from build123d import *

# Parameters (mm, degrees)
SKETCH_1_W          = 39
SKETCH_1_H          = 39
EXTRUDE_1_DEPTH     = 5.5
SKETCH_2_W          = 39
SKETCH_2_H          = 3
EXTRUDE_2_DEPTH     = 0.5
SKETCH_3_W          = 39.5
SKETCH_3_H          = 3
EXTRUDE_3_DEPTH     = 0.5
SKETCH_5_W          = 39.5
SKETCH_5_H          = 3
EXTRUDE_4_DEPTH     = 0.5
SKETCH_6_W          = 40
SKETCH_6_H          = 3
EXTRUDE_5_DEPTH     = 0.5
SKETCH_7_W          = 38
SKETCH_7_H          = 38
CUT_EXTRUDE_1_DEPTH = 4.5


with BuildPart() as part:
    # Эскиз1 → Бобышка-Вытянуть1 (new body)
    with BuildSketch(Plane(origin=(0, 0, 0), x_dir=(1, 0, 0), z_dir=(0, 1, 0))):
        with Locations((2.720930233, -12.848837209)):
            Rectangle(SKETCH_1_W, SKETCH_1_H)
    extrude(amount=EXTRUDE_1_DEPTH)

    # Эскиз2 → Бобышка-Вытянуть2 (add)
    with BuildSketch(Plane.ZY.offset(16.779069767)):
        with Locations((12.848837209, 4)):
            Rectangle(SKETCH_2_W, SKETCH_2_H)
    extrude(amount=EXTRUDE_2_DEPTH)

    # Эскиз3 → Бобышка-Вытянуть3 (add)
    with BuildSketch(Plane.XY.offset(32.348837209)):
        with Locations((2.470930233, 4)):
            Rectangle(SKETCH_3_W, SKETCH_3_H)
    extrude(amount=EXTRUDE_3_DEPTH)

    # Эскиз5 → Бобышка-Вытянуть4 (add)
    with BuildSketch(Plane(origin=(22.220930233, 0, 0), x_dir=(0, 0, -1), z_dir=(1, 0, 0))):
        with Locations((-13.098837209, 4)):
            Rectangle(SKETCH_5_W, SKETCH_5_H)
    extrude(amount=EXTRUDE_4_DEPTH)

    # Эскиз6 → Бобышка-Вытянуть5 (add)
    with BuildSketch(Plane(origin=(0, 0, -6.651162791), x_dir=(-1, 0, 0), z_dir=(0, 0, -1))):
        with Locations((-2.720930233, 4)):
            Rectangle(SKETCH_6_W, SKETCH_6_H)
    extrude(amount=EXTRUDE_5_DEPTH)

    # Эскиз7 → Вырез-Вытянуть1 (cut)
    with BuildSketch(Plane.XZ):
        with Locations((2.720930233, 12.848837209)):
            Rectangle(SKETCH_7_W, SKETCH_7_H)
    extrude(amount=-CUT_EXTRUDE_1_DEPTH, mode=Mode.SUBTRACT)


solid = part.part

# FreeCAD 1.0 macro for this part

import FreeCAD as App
import Part
import Sketcher
Q = App.Units.Quantity


def add_polygon(sketch, points):
    """Adds a closed chain of lines whose ends are joined by coincident constraints."""
    first, n = sketch.GeometryCount, len(points)
    for a, b in zip(points, points[1:] + points[:1]):
        sketch.addGeometry(Part.LineSegment(App.Vector(*a, 0), App.Vector(*b, 0)), False)
    for i in range(n):
        sketch.addConstraint(Sketcher.Constraint("Coincident", first + i, 2, first + (i + 1) % n, 1))

doc = App.newDocument("Part")
body = doc.addObject("PartDesign::Body", "Body")

# Sketch on XZ plane
sketch1 = body.newObject("Sketcher::SketchObject", "Sketch")
sketch1.AttachmentSupport = (doc.getObject("XZ_Plane"), [""])
sketch1.MapMode = "FlatFace"
add_polygon(sketch1, [(-17, -7), (-17, 32), (22, 32), (22, -7)])  # lines 0-3
sketch1.addConstraint([
    Sketcher.Constraint("Vertical", 0),
    Sketcher.Constraint("Horizontal", 1),
    Sketcher.Constraint("Vertical", 2),
    Sketcher.Constraint("Horizontal", 3),
    Sketcher.Constraint("Equal", 3, 0),
    Sketcher.Constraint("DistanceX", 1, 1, 1, 2, Q("39 mm")),
    Sketcher.Constraint("DistanceX", 0, 2, -1, 1, Q("16.77907 mm")),
    Sketcher.Constraint("DistanceY", -1, 1, 0, 2, Q("32.348837 mm")),
])
pad1 = body.newObject("PartDesign::Pad", "Pad")
pad1.Profile = sketch1
pad1.Length = 5.5
pad1.Reversed = True

# Sketch on YZ plane
sketch2 = body.newObject("Sketcher::SketchObject", "Sketch001")
sketch2.AttachmentSupport = (doc.getObject("YZ_Plane"), [""])
sketch2.MapMode = "FlatFace"
sketch2.AttachmentOffset = App.Placement(App.Vector(0, 0, -16.77907), App.Rotation())
add_polygon(sketch2, [(5.5, -6.7), (2.5, -6.7), (2.5, 32.3), (5.5, 32.3)])  # lines 0-3
sketch2.addConstraint([
    Sketcher.Constraint("Horizontal", 0),
    Sketcher.Constraint("Vertical", 1),
    Sketcher.Constraint("Horizontal", 2),
    Sketcher.Constraint("Vertical", 3),
    Sketcher.Constraint("DistanceX", 0, 2, 0, 1, Q("3 mm")),
    Sketcher.Constraint("DistanceY", 1, 1, 1, 2, Q("39 mm")),
    Sketcher.Constraint("DistanceX", -1, 1, 0, 2, Q("2.5 mm")),
    Sketcher.Constraint("DistanceY", 0, 2, -1, 1, Q("6.651163 mm")),
])
pad2 = body.newObject("PartDesign::Pad", "Pad001")
pad2.Profile = sketch2
pad2.Length = 0.5
pad2.Reversed = True

# Sketch on XY plane
sketch3 = body.newObject("Sketcher::SketchObject", "Sketch002")
sketch3.AttachmentSupport = (doc.getObject("XY_Plane"), [""])
sketch3.MapMode = "FlatFace"
sketch3.AttachmentOffset = App.Placement(App.Vector(0, 0, 32.348837), App.Rotation())
add_polygon(sketch3, [(-17.3, 5.5), (-17.3, 2.5), (22.2, 2.5), (22.2, 5.5)])  # lines 0-3
sketch3.addConstraint([
    Sketcher.Constraint("Vertical", 0),
    Sketcher.Constraint("Horizontal", 1),
    Sketcher.Constraint("Vertical", 2),
    Sketcher.Constraint("Horizontal", 3),
    Sketcher.Constraint("DistanceY", 0, 2, 0, 1, Q("3 mm")),
    Sketcher.Constraint("DistanceX", 1, 1, 1, 2, Q("39.5 mm")),
    Sketcher.Constraint("DistanceY", -1, 1, 0, 2, Q("2.5 mm")),
    Sketcher.Constraint("DistanceX", 0, 2, -1, 1, Q("17.27907 mm")),
])
pad3 = body.newObject("PartDesign::Pad", "Pad002")
pad3.Profile = sketch3
pad3.Length = 0.5

# Sketch on YZ plane
sketch4 = body.newObject("Sketcher::SketchObject", "Sketch003")
sketch4.AttachmentSupport = (doc.getObject("YZ_Plane"), [""])
sketch4.MapMode = "FlatFace"
sketch4.AttachmentOffset = App.Placement(App.Vector(0, 0, 22.22093), App.Rotation())
add_polygon(sketch4, [(5.5, 32.8), (2.5, 32.8), (2.5, -6.7), (5.5, -6.7)])  # lines 0-3
sketch4.addConstraint([
    Sketcher.Constraint("Horizontal", 0),
    Sketcher.Constraint("Vertical", 1),
    Sketcher.Constraint("Horizontal", 2),
    Sketcher.Constraint("Vertical", 3),
    Sketcher.Constraint("DistanceX", 0, 2, 0, 1, Q("3 mm")),
    Sketcher.Constraint("DistanceY", 1, 2, 1, 1, Q("39.5 mm")),
    Sketcher.Constraint("DistanceX", -1, 1, 0, 2, Q("2.5 mm")),
    Sketcher.Constraint("DistanceY", -1, 1, 0, 2, Q("32.848837 mm")),
])
pad4 = body.newObject("PartDesign::Pad", "Pad003")
pad4.Profile = sketch4
pad4.Length = 0.5

# Sketch on XY plane
sketch5 = body.newObject("Sketcher::SketchObject", "Sketch004")
sketch5.AttachmentSupport = (doc.getObject("XY_Plane"), [""])
sketch5.MapMode = "FlatFace"
sketch5.AttachmentOffset = App.Placement(App.Vector(0, 0, -6.651163), App.Rotation())
add_polygon(sketch5, [(22.7, 5.5), (22.7, 2.5), (-17.3, 2.5), (-17.3, 5.5)])  # lines 0-3
sketch5.addConstraint([
    Sketcher.Constraint("Vertical", 0),
    Sketcher.Constraint("Horizontal", 1),
    Sketcher.Constraint("Vertical", 2),
    Sketcher.Constraint("Horizontal", 3),
    Sketcher.Constraint("DistanceX", 1, 2, 1, 1, Q("40 mm")),
    Sketcher.Constraint("DistanceY", 0, 2, 0, 1, Q("3 mm")),
    Sketcher.Constraint("DistanceY", -1, 1, 0, 2, Q("2.5 mm")),
    Sketcher.Constraint("DistanceX", -1, 1, 0, 2, Q("22.72093 mm")),
])
pad5 = body.newObject("PartDesign::Pad", "Pad004")
pad5.Profile = sketch5
pad5.Length = 0.5
pad5.Reversed = True

# Sketch on XZ plane
sketch6 = body.newObject("Sketcher::SketchObject", "Sketch005")
sketch6.AttachmentSupport = (doc.getObject("XZ_Plane"), [""])
sketch6.MapMode = "FlatFace"
add_polygon(sketch6, [(-16, 32), (-16, -6), (22, -6), (22, 32)])  # lines 0-3
sketch6.addConstraint([
    Sketcher.Constraint("Vertical", 0),
    Sketcher.Constraint("Horizontal", 1),
    Sketcher.Constraint("Vertical", 2),
    Sketcher.Constraint("Horizontal", 3),
    Sketcher.Constraint("Equal", 3, 0),
    Sketcher.Constraint("DistanceX", 1, 1, 1, 2, Q("38 mm")),
    Sketcher.Constraint("DistanceX", 0, 2, -1, 1, Q("16.27907 mm")),
    Sketcher.Constraint("DistanceY", 0, 2, -1, 1, Q("6.151163 mm")),
])
pocket1 = body.newObject("PartDesign::Pocket", "Pocket")
pocket1.Profile = sketch6
pocket1.Length = 4.5

doc.recompute()
